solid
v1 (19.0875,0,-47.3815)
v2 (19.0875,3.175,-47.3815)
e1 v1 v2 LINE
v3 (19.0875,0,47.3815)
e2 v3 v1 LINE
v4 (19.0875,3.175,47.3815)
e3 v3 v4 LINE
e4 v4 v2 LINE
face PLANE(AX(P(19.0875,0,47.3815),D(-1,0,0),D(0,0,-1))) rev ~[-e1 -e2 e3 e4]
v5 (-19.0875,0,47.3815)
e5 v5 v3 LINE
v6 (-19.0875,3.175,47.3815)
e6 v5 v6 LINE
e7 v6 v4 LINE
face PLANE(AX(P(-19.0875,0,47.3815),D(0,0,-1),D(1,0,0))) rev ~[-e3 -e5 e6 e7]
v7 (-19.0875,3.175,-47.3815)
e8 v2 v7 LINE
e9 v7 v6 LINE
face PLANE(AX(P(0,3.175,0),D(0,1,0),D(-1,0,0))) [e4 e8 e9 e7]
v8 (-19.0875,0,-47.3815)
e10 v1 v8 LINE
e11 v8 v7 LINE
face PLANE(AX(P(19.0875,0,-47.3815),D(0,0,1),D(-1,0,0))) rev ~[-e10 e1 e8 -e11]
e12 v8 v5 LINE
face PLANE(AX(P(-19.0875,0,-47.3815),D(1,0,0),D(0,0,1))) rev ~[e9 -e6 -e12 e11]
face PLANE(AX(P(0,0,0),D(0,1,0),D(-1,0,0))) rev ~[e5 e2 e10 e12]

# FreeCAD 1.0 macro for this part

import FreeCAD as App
import Part
import Sketcher
Q = App.Units.Quantity

doc = App.newDocument("Part")
body = doc.addObject("PartDesign::Body", "Body")

# Sketch on XZ plane
sketch1 = body.newObject("Sketcher::SketchObject", "Sketch")
sketch1.AttachmentSupport = (doc.getObject("XZ_Plane"), [""])
sketch1.MapMode = "FlatFace"
sketch1.addGeometry(Part.LineSegment(App.Vector(19, 47, 0), App.Vector(19, -47, 0)), False)
sketch1.addGeometry(Part.LineSegment(App.Vector(19, -47, 0), App.Vector(-19, -47, 0)), False)
sketch1.addGeometry(Part.LineSegment(App.Vector(-19, -47, 0), App.Vector(-19, 47, 0)), False)
sketch1.addGeometry(Part.LineSegment(App.Vector(-19, 47, 0), App.Vector(19, 47, 0)), False)
sketch1.addConstraint(Sketcher.Constraint("Coincident", 0, 2, 1, 1))
sketch1.addConstraint(Sketcher.Constraint("Coincident", 1, 2, 2, 1))
sketch1.addConstraint(Sketcher.Constraint("Coincident", 2, 2, 3, 1))
sketch1.addConstraint(Sketcher.Constraint("Coincident", 3, 2, 0, 1))
sketch1.addConstraint(Sketcher.Constraint("Vertical", 0))
sketch1.addConstraint(Sketcher.Constraint("Horizontal", 1))
sketch1.addConstraint(Sketcher.Constraint("Vertical", 2))
sketch1.addConstraint(Sketcher.Constraint("Horizontal", 3))
sketch1.addConstraint(Sketcher.Constraint("Symmetric", 0, 2, 2, 2, -1, 1))
sketch1.addConstraint(Sketcher.Constraint("DistanceX", 1, 2, 1, 1, Q("38.175 mm")))
sketch1.addConstraint(Sketcher.Constraint("DistanceY", 0, 2, 0, 1, Q("94.763 mm")))
pad1 = body.newObject("PartDesign::Pad", "Pad")
pad1.Profile = sketch1
pad1.Length = Q("0.125 in")
pad1.Reversed = True

doc.recompute()
